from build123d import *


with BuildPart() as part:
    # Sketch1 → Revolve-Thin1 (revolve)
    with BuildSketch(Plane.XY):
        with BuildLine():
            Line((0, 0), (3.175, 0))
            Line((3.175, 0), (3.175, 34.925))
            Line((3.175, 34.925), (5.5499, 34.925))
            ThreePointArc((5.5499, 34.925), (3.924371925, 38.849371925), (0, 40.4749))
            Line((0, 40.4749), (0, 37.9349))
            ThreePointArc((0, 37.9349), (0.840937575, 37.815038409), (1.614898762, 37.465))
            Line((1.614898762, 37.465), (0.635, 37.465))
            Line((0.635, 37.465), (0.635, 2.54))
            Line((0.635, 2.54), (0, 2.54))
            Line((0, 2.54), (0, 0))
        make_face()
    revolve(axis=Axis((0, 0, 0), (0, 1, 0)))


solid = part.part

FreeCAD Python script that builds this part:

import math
import FreeCAD as App
import Part
import Sketcher

V = App.Vector
Q = App.Units.Quantity

doc = App.newDocument("Part")
params = doc.addObject("Spreadsheet::Sheet", "Params")
for row, (alias, value) in enumerate([
    ("sketch1_height", "0.1 in"),
    ("sketch1_width", "0.125 in"),
    ("sketch1_height2", "1.375 in"),
    ("revolution_angle", "360 deg"),
], start=1):
    params.set(f"A{row}", alias)
    params.set(f"B{row}", "=" + value)
    params.setAlias(f"B{row}", alias)

body = doc.addObject("PartDesign::Body", "Body")

sketch1 = body.newObject("Sketcher::SketchObject", "Sketch")
sketch1.AttachmentSupport = (doc.getObject("XY_Plane"), [""])
sketch1.MapMode = "FlatFace"
sketch1.addGeometry([
    Part.LineSegment(V(0, 0, 0), V(3.2, 0, 0)),
    Part.LineSegment(V(3.2, 0, 0), V(3.2, 34.9, 0)),
    Part.LineSegment(V(3.2, 34.9, 0), V(5.5, 34.9, 0)),
    Part.ArcOfCircle(Part.Circle(V(0, 34.9, 0), V(0, 0, 1), 5.5), math.radians(0), math.radians(90)),
    Part.LineSegment(V(0, 40.5, 0), V(0, 37.9, 0)),
    Part.ArcOfCircle(Part.Circle(V(0, 34.9, 0), V(0, 0, 1), 3), math.radians(58), math.radians(90)),
    Part.LineSegment(V(1.6, 37.5, 0), V(0.6, 37.5, 0)),
    Part.LineSegment(V(0.6, 37.5, 0), V(0.6, 2.5, 0)),
    Part.LineSegment(V(0.6, 2.5, 0), V(0, 2.5, 0)),
    Part.LineSegment(V(0, 2.5, 0), V(0, 0, 0)),
], False)
sketch1.addConstraint([
    Sketcher.Constraint("Coincident", 0, 2, 1, 1),
    Sketcher.Constraint("Coincident", 1, 2, 2, 1),
    Sketcher.Constraint("Coincident", 2, 2, 3, 1),
    Sketcher.Constraint("Coincident", 3, 2, 4, 1),
    Sketcher.Constraint("Coincident", 4, 2, 5, 2),
    Sketcher.Constraint("Coincident", 5, 1, 6, 1),
    Sketcher.Constraint("Coincident", 6, 2, 7, 1),
    Sketcher.Constraint("Coincident", 7, 2, 8, 1),
    Sketcher.Constraint("Coincident", 8, 2, 9, 1),
    Sketcher.Constraint("Coincident", 9, 2, 0, 1),
    Sketcher.Constraint("Horizontal", 0),
    Sketcher.Constraint("Vertical", 1),
    Sketcher.Constraint("Horizontal", 2),
    Sketcher.Constraint("Vertical", 4),
    Sketcher.Constraint("Horizontal", 6),
    Sketcher.Constraint("Vertical", 7),
    Sketcher.Constraint("Horizontal", 8),
    Sketcher.Constraint("Vertical", 9),
    Sketcher.Constraint("Coincident", 9, 2, -1, 1),
    Sketcher.Constraint("Coincident", 5, 3, 3, 3),
    Sketcher.Constraint("PointOnObject", 3, 3, -2),
    Sketcher.Constraint("PointOnObject", 3, 2, -2),
    Sketcher.Constraint("Horizontal", 5, 3, 1, 2),
    Sketcher.Constraint("Equal", 1, 7),
    Sketcher.Constraint("Equal", 4, 9),
    Sketcher.Constraint("DistanceY", 4, 2, 4, 1, Q("0.1 in")),
    Sketcher.Constraint("Radius", 3, Q("0.2185 in")),
    Sketcher.Constraint("DistanceX", 7, 2, 0, 2, Q("0.1 in")),
    Sketcher.Constraint("DistanceX", 0, 1, 0, 2, Q("0.125 in")),
    Sketcher.Constraint("DistanceY", 1, 1, 1, 2, Q("1.375 in")),
])
sketch1.setExpression("Constraints[25]", "Params.sketch1_height")
sketch1.setExpression("Constraints[28]", "Params.sketch1_width")
sketch1.setExpression("Constraints[29]", "Params.sketch1_height2")
revolution = body.newObject("PartDesign::Revolution", "Revolution")
revolution.Profile = sketch1
revolution.ReferenceAxis = (sketch1, ["V_Axis"])
revolution.setExpression("Angle", "Params.revolution_angle")

doc.recompute()
